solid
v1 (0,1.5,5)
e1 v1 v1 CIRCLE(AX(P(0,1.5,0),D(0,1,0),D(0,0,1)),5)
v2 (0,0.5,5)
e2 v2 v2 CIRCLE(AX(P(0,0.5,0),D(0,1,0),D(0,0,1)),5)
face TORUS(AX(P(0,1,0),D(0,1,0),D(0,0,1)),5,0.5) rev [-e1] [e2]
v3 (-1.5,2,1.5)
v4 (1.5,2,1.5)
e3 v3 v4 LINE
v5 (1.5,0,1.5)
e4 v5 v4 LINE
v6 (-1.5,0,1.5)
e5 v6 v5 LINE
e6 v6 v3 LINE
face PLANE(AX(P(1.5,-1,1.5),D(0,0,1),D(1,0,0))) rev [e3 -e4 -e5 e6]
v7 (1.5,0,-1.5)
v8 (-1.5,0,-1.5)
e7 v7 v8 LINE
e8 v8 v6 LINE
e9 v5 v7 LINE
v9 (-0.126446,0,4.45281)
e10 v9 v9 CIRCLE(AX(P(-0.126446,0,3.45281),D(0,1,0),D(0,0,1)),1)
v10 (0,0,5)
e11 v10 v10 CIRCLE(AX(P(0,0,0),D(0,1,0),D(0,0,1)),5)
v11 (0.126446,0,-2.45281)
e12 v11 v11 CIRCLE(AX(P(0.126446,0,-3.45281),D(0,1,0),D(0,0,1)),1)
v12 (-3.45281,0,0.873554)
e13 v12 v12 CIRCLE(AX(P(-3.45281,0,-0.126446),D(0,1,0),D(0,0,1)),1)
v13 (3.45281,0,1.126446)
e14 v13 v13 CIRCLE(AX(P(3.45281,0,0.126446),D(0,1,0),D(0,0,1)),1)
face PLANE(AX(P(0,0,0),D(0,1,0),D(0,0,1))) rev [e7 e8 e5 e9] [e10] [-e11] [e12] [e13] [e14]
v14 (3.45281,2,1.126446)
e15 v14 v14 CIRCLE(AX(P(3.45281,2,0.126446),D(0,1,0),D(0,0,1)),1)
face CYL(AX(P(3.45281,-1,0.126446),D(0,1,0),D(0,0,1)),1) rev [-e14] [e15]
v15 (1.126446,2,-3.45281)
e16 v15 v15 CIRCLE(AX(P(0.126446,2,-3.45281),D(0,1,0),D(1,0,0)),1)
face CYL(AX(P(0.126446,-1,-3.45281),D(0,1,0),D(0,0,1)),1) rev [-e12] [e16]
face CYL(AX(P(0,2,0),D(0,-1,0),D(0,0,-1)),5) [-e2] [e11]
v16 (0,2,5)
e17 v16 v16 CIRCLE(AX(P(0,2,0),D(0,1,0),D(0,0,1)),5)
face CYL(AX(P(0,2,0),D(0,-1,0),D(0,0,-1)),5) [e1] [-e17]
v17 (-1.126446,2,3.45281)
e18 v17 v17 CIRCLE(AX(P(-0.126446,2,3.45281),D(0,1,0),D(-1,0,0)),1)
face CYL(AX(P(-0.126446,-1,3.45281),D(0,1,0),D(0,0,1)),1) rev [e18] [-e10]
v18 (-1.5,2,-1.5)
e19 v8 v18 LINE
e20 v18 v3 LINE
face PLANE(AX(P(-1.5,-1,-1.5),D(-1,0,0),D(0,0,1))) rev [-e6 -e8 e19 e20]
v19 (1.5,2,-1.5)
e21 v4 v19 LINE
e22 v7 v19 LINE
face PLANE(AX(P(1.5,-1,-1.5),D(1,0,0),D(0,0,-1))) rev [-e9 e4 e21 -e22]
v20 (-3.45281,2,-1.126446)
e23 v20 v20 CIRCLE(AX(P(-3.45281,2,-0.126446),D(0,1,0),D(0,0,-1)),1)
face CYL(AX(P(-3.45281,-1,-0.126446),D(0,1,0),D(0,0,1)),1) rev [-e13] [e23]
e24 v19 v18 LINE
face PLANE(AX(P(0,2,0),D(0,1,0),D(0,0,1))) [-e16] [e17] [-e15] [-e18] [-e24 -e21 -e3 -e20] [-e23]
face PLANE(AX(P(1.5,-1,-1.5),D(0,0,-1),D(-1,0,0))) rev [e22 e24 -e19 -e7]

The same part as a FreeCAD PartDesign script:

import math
import FreeCAD as App
import Part
import Sketcher

doc = App.newDocument("Part")
params = doc.addObject("Spreadsheet::Sheet", "Params")
for row, (alias, value) in enumerate([
    ("sketch1_diameter", "10 mm"),
    ("pad1_length", "2 mm"),
    ("sketch2_width", "3 mm"),
    ("pocket1_length", "3 mm"),
    ("sketch3_diameter", "2 mm"),
    ("pocket2_length", "3 mm"),
    ("sketch4_radius", "0.5 mm"),
    ("groove_angle", "360 deg"),
], start=1):
    params.set(f"A{row}", alias)
    params.set(f"B{row}", "=" + value)
    params.setAlias(f"B{row}", alias)

body = doc.addObject("PartDesign::Body", "Body")

# Sketch on XZ plane
sketch1 = body.newObject("Sketcher::SketchObject", "Sketch")
sketch1.AttachmentSupport = (doc.getObject("XZ_Plane"), [""])
sketch1.MapMode = "FlatFace"
sketch1.addGeometry(Part.Circle(App.Vector(0, 0, 0), App.Vector(0, 0, 1), 5), False)
sketch1.addConstraint([
    Sketcher.Constraint("Coincident", 0, 3, -1, 1),
    Sketcher.Constraint("Diameter", 0, 10.0),
])
sketch1.setExpression("Constraints[1]", "Params.sketch1_diameter")
pad1 = body.newObject("PartDesign::Pad", "Pad")
pad1.Profile = sketch1
pad1.setExpression("Length", "Params.pad1_length")
pad1.Reversed = True

# Sketch on XZ plane
sketch2 = body.newObject("Sketcher::SketchObject", "Sketch001")
sketch2.AttachmentSupport = (doc.getObject("XZ_Plane"), [""])
sketch2.MapMode = "FlatFace"
sketch2.AttachmentOffset = App.Placement(App.Vector(0, 0, -2), App.Rotation())
sketch2.addGeometry([
    Part.LineSegment(App.Vector(-1.5, -1.5, 0), App.Vector(-1.5, 1.5, 0)),
    Part.LineSegment(App.Vector(-1.5, 1.5, 0), App.Vector(1.5, 1.5, 0)),
    Part.LineSegment(App.Vector(1.5, 1.5, 0), App.Vector(1.5, -1.5, 0)),
    Part.LineSegment(App.Vector(1.5, -1.5, 0), App.Vector(-1.5, -1.5, 0)),
], False)
sketch2.addConstraint([
    Sketcher.Constraint("Coincident", 0, 2, 1, 1),
    Sketcher.Constraint("Coincident", 1, 2, 2, 1),
    Sketcher.Constraint("Coincident", 2, 2, 3, 1),
    Sketcher.Constraint("Coincident", 3, 2, 0, 1),
    Sketcher.Constraint("Vertical", 0),
    Sketcher.Constraint("Horizontal", 1),
    Sketcher.Constraint("Vertical", 2),
    Sketcher.Constraint("Horizontal", 3),
    Sketcher.Constraint("Symmetric", 0, 2, 2, 2, -1, 1),
    Sketcher.Constraint("Equal", 3, 0),
    Sketcher.Constraint("DistanceX", 1, 1, 1, 2, 3.0),
])
sketch2.setExpression("Constraints[10]", "Params.sketch2_width")
pocket1 = body.newObject("PartDesign::Pocket", "Pocket")
pocket1.Profile = sketch2
pocket1.setExpression("Length", "Params.pocket1_length")
pocket1.Reversed = True

# Sketch on XZ plane
sketch3 = body.newObject("Sketcher::SketchObject", "Sketch002")
sketch3.AttachmentSupport = (doc.getObject("XZ_Plane"), [""])
sketch3.MapMode = "FlatFace"
sketch3.AttachmentOffset = App.Placement(App.Vector(0, 0, -2), App.Rotation())
sketch3.addGeometry(Part.Circle(App.Vector(3.5, 0.1, 0), App.Vector(0, 0, 1), 1), False)
sketch3.addConstraint([
    Sketcher.Constraint("Diameter", 0, 2.0),
    Sketcher.Constraint("DistanceX", -1, 1, 0, 3, 3.45281),
    Sketcher.Constraint("DistanceY", -1, 1, 0, 3, 0.126446),
])
sketch3.setExpression("Constraints[0]", "Params.sketch3_diameter")
pocket2 = body.newObject("PartDesign::Pocket", "Pocket001")
pocket2.Profile = sketch3
pocket2.setExpression("Length", "Params.pocket2_length")
pocket2.Reversed = True
doc.recompute()

polarpattern = body.newObject("PartDesign::PolarPattern", "PolarPattern")
polarpattern.Originals = [pocket2]
polarpattern.Axis = (doc.getObject("Y_Axis"), [""])
polarpattern.Angle = 360
polarpattern.Occurrences = 4
body.Tip = polarpattern

# Sketch on XY plane
sketch4 = body.newObject("Sketcher::SketchObject", "Sketch003")
sketch4.AttachmentSupport = (doc.getObject("XY_Plane"), [""])
sketch4.MapMode = "FlatFace"
sketch4.addGeometry([
    Part.LineSegment(App.Vector(-5, 1.5, 0), App.Vector(-5, 0.5, 0)),
    Part.ArcOfCircle(Part.Circle(App.Vector(-5, 1, 0), App.Vector(0, 0, 1), 0.5), math.radians(-90), math.radians(90)),
], False)
sketch4.addConstraint([
    Sketcher.Constraint("Coincident", 0, 1, 1, 2),
    Sketcher.Constraint("Coincident", 1, 1, 0, 2),
    Sketcher.Constraint("Vertical", 0),
    Sketcher.Constraint("Vertical", 1, 3, 0, 1),
    Sketcher.Constraint("Radius", 1, 0.5),
    Sketcher.Constraint("DistanceX", 1, 3, -1, 1, 5.0),
    Sketcher.Constraint("DistanceY", -1, 1, 1, 3, 1.0),
])
sketch4.setExpression("Constraints[4]", "Params.sketch4_radius")
groove = body.newObject("PartDesign::Groove", "Groove")
groove.Profile = sketch4
groove.ReferenceAxis = (sketch4, ["V_Axis"])
groove.setExpression("Angle", "Params.groove_angle")

doc.recompute()
